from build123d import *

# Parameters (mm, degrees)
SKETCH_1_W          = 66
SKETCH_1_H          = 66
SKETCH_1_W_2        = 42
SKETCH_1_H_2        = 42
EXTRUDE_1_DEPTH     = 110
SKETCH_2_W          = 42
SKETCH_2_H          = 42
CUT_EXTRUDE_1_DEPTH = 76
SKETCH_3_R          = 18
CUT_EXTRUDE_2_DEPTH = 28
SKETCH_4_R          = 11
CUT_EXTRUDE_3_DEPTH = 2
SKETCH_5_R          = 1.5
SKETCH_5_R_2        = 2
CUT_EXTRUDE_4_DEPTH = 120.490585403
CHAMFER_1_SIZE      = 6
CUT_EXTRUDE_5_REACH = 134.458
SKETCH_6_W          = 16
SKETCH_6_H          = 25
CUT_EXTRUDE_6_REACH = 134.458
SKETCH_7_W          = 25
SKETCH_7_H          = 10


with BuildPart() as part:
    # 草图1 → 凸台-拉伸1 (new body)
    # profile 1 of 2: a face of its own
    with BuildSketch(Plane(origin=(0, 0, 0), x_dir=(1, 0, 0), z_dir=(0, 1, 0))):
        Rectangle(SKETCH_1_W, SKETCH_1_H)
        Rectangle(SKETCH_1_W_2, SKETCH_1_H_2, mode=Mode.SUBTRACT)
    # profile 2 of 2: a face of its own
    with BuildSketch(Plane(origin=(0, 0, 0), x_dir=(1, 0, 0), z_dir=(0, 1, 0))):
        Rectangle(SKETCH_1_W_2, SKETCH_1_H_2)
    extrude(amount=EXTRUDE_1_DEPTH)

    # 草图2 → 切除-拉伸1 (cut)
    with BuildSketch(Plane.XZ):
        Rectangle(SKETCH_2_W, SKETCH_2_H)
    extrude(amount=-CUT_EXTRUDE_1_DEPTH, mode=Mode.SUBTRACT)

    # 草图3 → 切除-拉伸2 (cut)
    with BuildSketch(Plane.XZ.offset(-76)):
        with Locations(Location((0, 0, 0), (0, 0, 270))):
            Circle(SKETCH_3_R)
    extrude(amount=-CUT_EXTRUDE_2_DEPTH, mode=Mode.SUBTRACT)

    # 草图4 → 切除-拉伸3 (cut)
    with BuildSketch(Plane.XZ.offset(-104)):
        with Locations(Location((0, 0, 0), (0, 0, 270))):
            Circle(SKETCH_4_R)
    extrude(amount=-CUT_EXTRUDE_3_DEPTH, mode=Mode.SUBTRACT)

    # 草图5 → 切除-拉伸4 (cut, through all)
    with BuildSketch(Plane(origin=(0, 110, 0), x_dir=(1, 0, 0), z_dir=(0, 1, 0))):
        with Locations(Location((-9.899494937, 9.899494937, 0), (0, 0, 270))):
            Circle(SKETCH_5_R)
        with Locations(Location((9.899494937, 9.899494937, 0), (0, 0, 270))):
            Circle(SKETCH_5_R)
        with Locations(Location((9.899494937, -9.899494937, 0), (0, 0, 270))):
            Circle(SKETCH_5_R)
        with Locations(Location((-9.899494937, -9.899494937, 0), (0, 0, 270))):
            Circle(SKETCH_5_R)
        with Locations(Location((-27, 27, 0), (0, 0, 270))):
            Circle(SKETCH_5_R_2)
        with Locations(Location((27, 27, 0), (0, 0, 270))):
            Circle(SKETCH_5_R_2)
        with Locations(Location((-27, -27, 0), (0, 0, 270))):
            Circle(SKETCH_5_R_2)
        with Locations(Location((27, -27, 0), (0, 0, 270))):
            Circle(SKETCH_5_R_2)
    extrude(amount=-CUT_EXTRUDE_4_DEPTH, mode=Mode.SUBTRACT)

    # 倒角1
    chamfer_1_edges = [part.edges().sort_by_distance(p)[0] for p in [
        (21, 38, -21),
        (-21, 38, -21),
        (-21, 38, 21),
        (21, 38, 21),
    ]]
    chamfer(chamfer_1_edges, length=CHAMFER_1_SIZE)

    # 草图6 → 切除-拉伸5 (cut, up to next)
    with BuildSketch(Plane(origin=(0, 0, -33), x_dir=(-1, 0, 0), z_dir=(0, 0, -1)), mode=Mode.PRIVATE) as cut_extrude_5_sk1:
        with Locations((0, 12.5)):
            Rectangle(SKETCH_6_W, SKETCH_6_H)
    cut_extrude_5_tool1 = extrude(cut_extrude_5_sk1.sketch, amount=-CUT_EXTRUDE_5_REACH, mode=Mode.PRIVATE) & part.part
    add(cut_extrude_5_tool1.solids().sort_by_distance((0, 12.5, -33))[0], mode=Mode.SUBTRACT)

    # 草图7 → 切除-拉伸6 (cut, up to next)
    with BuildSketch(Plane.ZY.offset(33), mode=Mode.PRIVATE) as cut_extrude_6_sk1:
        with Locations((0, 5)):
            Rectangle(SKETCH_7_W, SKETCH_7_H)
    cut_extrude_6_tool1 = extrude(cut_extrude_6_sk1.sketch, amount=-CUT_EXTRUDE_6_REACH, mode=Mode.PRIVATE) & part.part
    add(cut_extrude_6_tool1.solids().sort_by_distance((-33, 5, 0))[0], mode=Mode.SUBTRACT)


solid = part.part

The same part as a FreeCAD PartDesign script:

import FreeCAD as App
import Part
import Sketcher


def edges_at(feature, points):
    """Names of the edges that pass closest to the given points."""
    edges = feature.Shape.Edges
    near = lambda p: min(range(len(edges)), key=lambda i: edges[i].distToShape(Part.Vertex(*p))[0])
    return sorted({f"Edge{near(p) + 1}" for p in points})

doc = App.newDocument("Part")
body = doc.addObject("PartDesign::Body", "Body")

# Sketch on XZ plane
sketch1 = body.newObject("Sketcher::SketchObject", "Sketch")
sketch1.AttachmentSupport = (doc.getObject("XZ_Plane"), [""])
sketch1.MapMode = "FlatFace"
sketch1.addGeometry([
    Part.LineSegment(App.Vector(-33, -33, 0), App.Vector(-33, 33, 0)),
    Part.LineSegment(App.Vector(-33, 33, 0), App.Vector(33, 33, 0)),
    Part.LineSegment(App.Vector(33, 33, 0), App.Vector(33, -33, 0)),
    Part.LineSegment(App.Vector(33, -33, 0), App.Vector(-33, -33, 0)),
], False)
sketch1.addConstraint([
    Sketcher.Constraint("Coincident", 0, 2, 1, 1),
    Sketcher.Constraint("Coincident", 1, 2, 2, 1),
    Sketcher.Constraint("Coincident", 2, 2, 3, 1),
    Sketcher.Constraint("Coincident", 3, 2, 0, 1),
    Sketcher.Constraint("Vertical", 0),
    Sketcher.Constraint("Horizontal", 1),
    Sketcher.Constraint("Vertical", 2),
    Sketcher.Constraint("Horizontal", 3),
    Sketcher.Constraint("Symmetric", 0, 2, 2, 2, -1, 1),
    Sketcher.Constraint("Equal", 3, 0),
    Sketcher.Constraint("DistanceX", 1, 1, 1, 2, 66.0),
])
pad1 = body.newObject("PartDesign::Pad", "Pad")
pad1.Profile = sketch1
pad1.Length = 110
pad1.Reversed = True

# Sketch on XZ plane
sketch2 = body.newObject("Sketcher::SketchObject", "Sketch001")
sketch2.AttachmentSupport = (doc.getObject("XZ_Plane"), [""])
sketch2.MapMode = "FlatFace"
sketch2.addGeometry([
    Part.LineSegment(App.Vector(-21, 21, 0), App.Vector(-21, -21, 0)),
    Part.LineSegment(App.Vector(-21, -21, 0), App.Vector(21, -21, 0)),
    Part.LineSegment(App.Vector(21, -21, 0), App.Vector(21, 21, 0)),
    Part.LineSegment(App.Vector(21, 21, 0), App.Vector(-21, 21, 0)),
], False)
sketch2.addConstraint([
    Sketcher.Constraint("Coincident", 0, 2, 1, 1),
    Sketcher.Constraint("Coincident", 1, 2, 2, 1),
    Sketcher.Constraint("Coincident", 2, 2, 3, 1),
    Sketcher.Constraint("Coincident", 3, 2, 0, 1),
    Sketcher.Constraint("Vertical", 0),
    Sketcher.Constraint("Horizontal", 1),
    Sketcher.Constraint("Vertical", 2),
    Sketcher.Constraint("Horizontal", 3),
    Sketcher.Constraint("Symmetric", 0, 2, 2, 2, -1, 1),
    Sketcher.Constraint("Equal", 3, 0),
    Sketcher.Constraint("DistanceX", 1, 1, 1, 2, 42.0),
])
pocket1 = body.newObject("PartDesign::Pocket", "Pocket")
pocket1.Profile = sketch2
pocket1.Length = 76

# Sketch on XZ plane
sketch3 = body.newObject("Sketcher::SketchObject", "Sketch002")
sketch3.AttachmentSupport = (doc.getObject("XZ_Plane"), [""])
sketch3.MapMode = "FlatFace"
sketch3.AttachmentOffset = App.Placement(App.Vector(0, 0, -76), App.Rotation())
sketch3.addGeometry(Part.Circle(App.Vector(0, 0, 0), App.Vector(0, 0, 1), 18), False)
sketch3.addConstraint([
    Sketcher.Constraint("Coincident", 0, 3, -1, 1),
    Sketcher.Constraint("Diameter", 0, 36.0),
])
pocket2 = body.newObject("PartDesign::Pocket", "Pocket001")
pocket2.Profile = sketch3
pocket2.Length = 28

# Sketch on XZ plane
sketch4 = body.newObject("Sketcher::SketchObject", "Sketch003")
sketch4.AttachmentSupport = (doc.getObject("XZ_Plane"), [""])
sketch4.MapMode = "FlatFace"
sketch4.AttachmentOffset = App.Placement(App.Vector(0, 0, -104), App.Rotation())
sketch4.addGeometry(Part.Circle(App.Vector(0, 0, 0), App.Vector(0, 0, 1), 11), False)
sketch4.addConstraint([
    Sketcher.Constraint("Coincident", 0, 3, -1, 1),
    Sketcher.Constraint("Diameter", 0, 22.0),
])
pocket3 = body.newObject("PartDesign::Pocket", "Pocket002")
pocket3.Profile = sketch4
pocket3.Length = 2

# Sketch on XZ plane
sketch5 = body.newObject("Sketcher::SketchObject", "Sketch004")
sketch5.AttachmentSupport = (doc.getObject("XZ_Plane"), [""])
sketch5.MapMode = "FlatFace"
sketch5.AttachmentOffset = App.Placement(App.Vector(0, 0, -110), App.Rotation())
sketch5.addGeometry([
    Part.Circle(App.Vector(-9.9, -9.9, 0), App.Vector(0, 0, 1), 1.5),  # 0
    Part.Circle(App.Vector(9.9, -9.9, 0), App.Vector(0, 0, 1), 1.5),  # 1
    Part.Circle(App.Vector(9.9, 9.9, 0), App.Vector(0, 0, 1), 1.5),  # 2
    Part.Circle(App.Vector(-9.9, 9.9, 0), App.Vector(0, 0, 1), 1.5),  # 3
    Part.Circle(App.Vector(-27, -27, 0), App.Vector(0, 0, 1), 2),  # 4
    Part.Circle(App.Vector(27, -27, 0), App.Vector(0, 0, 1), 2),  # 5
    Part.Circle(App.Vector(-27, 27, 0), App.Vector(0, 0, 1), 2),  # 6
    Part.Circle(App.Vector(27, 27, 0), App.Vector(0, 0, 1), 2),  # 7
], False)
sketch5.addConstraint([
    Sketcher.Constraint("Equal", 0, 1),
    Sketcher.Constraint("Equal", 1, 2),
    Sketcher.Constraint("Equal", 2, 3),
    Sketcher.Constraint("Equal", 4, 5),
    Sketcher.Constraint("Equal", 5, 6),
    Sketcher.Constraint("Equal", 6, 7),
    Sketcher.Constraint("Symmetric", 0, 3, 2, 3, -1, 1),
    Sketcher.Constraint("Symmetric", 1, 3, 3, 3, -1, 1),
    Sketcher.Constraint("Symmetric", 5, 3, 6, 3, -1, 1),
    Sketcher.Constraint("Symmetric", 4, 3, 7, 3, -1, 1),
    Sketcher.Constraint("Symmetric", 0, 3, 1, 3, -2),
    Sketcher.Constraint("Symmetric", 4, 3, 5, 3, -2),
    Sketcher.Constraint("Diameter", 0, 3.0),
    Sketcher.Constraint("Diameter", 4, 4.0),
    Sketcher.Constraint("DistanceX", 4, 3, -1, 1, 27.0),
    Sketcher.Constraint("DistanceY", 4, 3, -1, 1, 27.0),
    Sketcher.Constraint("DistanceX", 0, 3, 1, 3, 19.79899),
    Sketcher.Constraint("DistanceY", 1, 3, 2, 3, 19.79899),
])
pocket4 = body.newObject("PartDesign::Pocket", "Pocket003")
pocket4.Profile = sketch5
pocket4.Type = "ThroughAll"
pocket4.Reversed = True
doc.recompute()

chamfer = body.newObject("PartDesign::Chamfer", "Chamfer")
chamfer.Base = (pocket4, edges_at(pocket4, [
    (21, 38, -21),
    (-21, 38, -21),
    (-21, 38, 21),
    (21, 38, 21),
]))
chamfer.Size = 6

# Sketch on XY plane
sketch6 = body.newObject("Sketcher::SketchObject", "Sketch005")
sketch6.AttachmentSupport = (doc.getObject("XY_Plane"), [""])
sketch6.MapMode = "FlatFace"
sketch6.AttachmentOffset = App.Placement(App.Vector(0, 0, -33), App.Rotation())
sketch6.addGeometry([
    Part.LineSegment(App.Vector(8, 25, 0), App.Vector(8, 0, 0)),
    Part.LineSegment(App.Vector(8, 0, 0), App.Vector(-8, 0, 0)),
    Part.LineSegment(App.Vector(-8, 0, 0), App.Vector(-8, 25, 0)),
    Part.LineSegment(App.Vector(-8, 25, 0), App.Vector(8, 25, 0)),
], False)
sketch6.addConstraint([
    Sketcher.Constraint("Coincident", 0, 2, 1, 1),
    Sketcher.Constraint("Coincident", 1, 2, 2, 1),
    Sketcher.Constraint("Coincident", 2, 2, 3, 1),
    Sketcher.Constraint("Coincident", 3, 2, 0, 1),
    Sketcher.Constraint("Vertical", 0),
    Sketcher.Constraint("Horizontal", 1),
    Sketcher.Constraint("Vertical", 2),
    Sketcher.Constraint("Horizontal", 3),
    Sketcher.Constraint("Symmetric", 0, 2, 1, 2, -1, 1),
    Sketcher.Constraint("DistanceX", 1, 2, 1, 1, 16.0),
    Sketcher.Constraint("DistanceY", 0, 2, 0, 1, 25.0),
])
pocket5 = body.newObject("PartDesign::Pocket", "Pocket004")
pocket5.Profile = sketch6
pocket5.Type = "UpToFirst"
pocket5.Reversed = True

# Sketch on YZ plane
sketch7 = body.newObject("Sketcher::SketchObject", "Sketch006")
sketch7.AttachmentSupport = (doc.getObject("YZ_Plane"), [""])
sketch7.MapMode = "FlatFace"
sketch7.AttachmentOffset = App.Placement(App.Vector(0, 0, -33), App.Rotation())
sketch7.addGeometry([
    Part.LineSegment(App.Vector(10, -12, 0), App.Vector(0, -12, 0)),
    Part.LineSegment(App.Vector(0, -12, 0), App.Vector(0, 12, 0)),
    Part.LineSegment(App.Vector(0, 12, 0), App.Vector(10, 12, 0)),
    Part.LineSegment(App.Vector(10, 12, 0), App.Vector(10, -12, 0)),
], False)
sketch7.addConstraint([
    Sketcher.Constraint("Coincident", 0, 2, 1, 1),
    Sketcher.Constraint("Coincident", 1, 2, 2, 1),
    Sketcher.Constraint("Coincident", 2, 2, 3, 1),
    Sketcher.Constraint("Coincident", 3, 2, 0, 1),
    Sketcher.Constraint("Horizontal", 0),
    Sketcher.Constraint("Vertical", 1),
    Sketcher.Constraint("Horizontal", 2),
    Sketcher.Constraint("Vertical", 3),
    Sketcher.Constraint("Symmetric", 0, 2, 1, 2, -1, 1),
    Sketcher.Constraint("DistanceX", 0, 2, 0, 1, 10.0),
    Sketcher.Constraint("DistanceY", 1, 1, 1, 2, 25.0),
])
pocket6 = body.newObject("PartDesign::Pocket", "Pocket005")
pocket6.Profile = sketch7
pocket6.Type = "UpToFirst"
pocket6.Reversed = True

doc.recompute()
